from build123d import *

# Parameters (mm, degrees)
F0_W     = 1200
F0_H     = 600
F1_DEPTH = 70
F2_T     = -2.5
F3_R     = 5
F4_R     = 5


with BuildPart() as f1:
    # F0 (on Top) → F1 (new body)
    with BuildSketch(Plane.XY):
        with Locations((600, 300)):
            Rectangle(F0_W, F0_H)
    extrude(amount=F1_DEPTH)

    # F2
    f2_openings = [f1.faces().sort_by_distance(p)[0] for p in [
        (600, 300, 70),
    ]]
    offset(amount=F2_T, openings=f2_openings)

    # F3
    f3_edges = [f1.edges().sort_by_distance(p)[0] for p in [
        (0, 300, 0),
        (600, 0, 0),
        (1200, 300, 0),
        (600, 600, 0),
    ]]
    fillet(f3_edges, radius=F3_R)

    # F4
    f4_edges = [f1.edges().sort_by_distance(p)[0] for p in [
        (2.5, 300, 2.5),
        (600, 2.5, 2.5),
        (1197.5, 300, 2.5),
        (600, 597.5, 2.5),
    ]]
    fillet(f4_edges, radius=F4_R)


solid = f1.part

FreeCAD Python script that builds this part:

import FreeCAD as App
import Part
import Sketcher


def edges_at(feature, points):
    """Names of the edges that pass closest to the given points."""
    edges = feature.Shape.Edges
    near = lambda p: min(range(len(edges)), key=lambda i: edges[i].distToShape(Part.Vertex(*p))[0])
    return sorted({f"Edge{near(p) + 1}" for p in points})


def faces_at(feature, points):
    """Names of the faces that lie closest to the given points."""
    faces = feature.Shape.Faces
    near = lambda p: min(range(len(faces)), key=lambda i: faces[i].distToShape(Part.Vertex(*p))[0])
    return sorted({f"Face{near(p) + 1}" for p in points})

doc = App.newDocument("Part")
params = doc.addObject("Spreadsheet::Sheet", "Params")
for row, (alias, value) in enumerate([
    ("sketch1_width", "1200 mm"),
    ("sketch1_height", "600 mm"),
    ("pad1_length", "70 mm"),
    ("thickness_wall", "2.5 mm"),
    ("fillet_radius", "5 mm"),
    ("fillet2_radius", "5 mm"),
], start=1):
    params.set(f"A{row}", alias)
    params.set(f"B{row}", "=" + value)
    params.setAlias(f"B{row}", alias)

body = doc.addObject("PartDesign::Body", "Body")

sketch1 = body.newObject("Sketcher::SketchObject", "Sketch")
sketch1.AttachmentSupport = (doc.getObject("XY_Plane"), [""])
sketch1.MapMode = "FlatFace"
sketch1.addGeometry(Part.LineSegment(App.Vector(0, 600, 0), App.Vector(0, 0, 0)), False)
sketch1.addGeometry(Part.LineSegment(App.Vector(0, 0, 0), App.Vector(1200, 0, 0)), False)
sketch1.addGeometry(Part.LineSegment(App.Vector(1200, 0, 0), App.Vector(1200, 600, 0)), False)
sketch1.addGeometry(Part.LineSegment(App.Vector(1200, 600, 0), App.Vector(0, 600, 0)), False)
sketch1.addConstraint(Sketcher.Constraint("Coincident", 0, 2, 1, 1))
sketch1.addConstraint(Sketcher.Constraint("Coincident", 1, 2, 2, 1))
sketch1.addConstraint(Sketcher.Constraint("Coincident", 2, 2, 3, 1))
sketch1.addConstraint(Sketcher.Constraint("Coincident", 3, 2, 0, 1))
sketch1.addConstraint(Sketcher.Constraint("Vertical", 0))
sketch1.addConstraint(Sketcher.Constraint("Horizontal", 1))
sketch1.addConstraint(Sketcher.Constraint("Vertical", 2))
sketch1.addConstraint(Sketcher.Constraint("Horizontal", 3))
sketch1.addConstraint(Sketcher.Constraint("Coincident", 0, 2, -1, 1))
sketch1.addConstraint(Sketcher.Constraint("DistanceX", 1, 1, 1, 2, 1200.0))
sketch1.addConstraint(Sketcher.Constraint("DistanceY", 0, 2, 0, 1, 600.0))
sketch1.setExpression("Constraints[9]", "Params.sketch1_width")
sketch1.setExpression("Constraints[10]", "Params.sketch1_height")
pad1 = body.newObject("PartDesign::Pad", "Pad")
pad1.Profile = sketch1
pad1.setExpression("Length", "Params.pad1_length")
doc.recompute()

thickness = body.newObject("PartDesign::Thickness", "Thickness")
thickness.Base = (pad1, faces_at(pad1, [(600, 300, 70)]))
thickness.setExpression("Value", "Params.thickness_wall")
thickness.Reversed = True
thickness.Join = "Arc"
doc.recompute()

fillet = body.newObject("PartDesign::Fillet", "Fillet")
fillet.Base = (thickness, edges_at(thickness, [
    (0, 300, 0),
    (600, 0, 0),
    (1200, 300, 0),
    (600, 600, 0),
]))
fillet.setExpression("Radius", "Params.fillet_radius")
doc.recompute()

fillet2 = body.newObject("PartDesign::Fillet", "Fillet001")
fillet2.Base = (fillet, edges_at(fillet, [
    (2.5, 300, 2.5),
    (600, 2.5, 2.5),
    (1197.5, 300, 2.5),
    (600, 597.5, 2.5),
]))
fillet2.setExpression("Radius", "Params.fillet2_radius")

doc.recompute()
